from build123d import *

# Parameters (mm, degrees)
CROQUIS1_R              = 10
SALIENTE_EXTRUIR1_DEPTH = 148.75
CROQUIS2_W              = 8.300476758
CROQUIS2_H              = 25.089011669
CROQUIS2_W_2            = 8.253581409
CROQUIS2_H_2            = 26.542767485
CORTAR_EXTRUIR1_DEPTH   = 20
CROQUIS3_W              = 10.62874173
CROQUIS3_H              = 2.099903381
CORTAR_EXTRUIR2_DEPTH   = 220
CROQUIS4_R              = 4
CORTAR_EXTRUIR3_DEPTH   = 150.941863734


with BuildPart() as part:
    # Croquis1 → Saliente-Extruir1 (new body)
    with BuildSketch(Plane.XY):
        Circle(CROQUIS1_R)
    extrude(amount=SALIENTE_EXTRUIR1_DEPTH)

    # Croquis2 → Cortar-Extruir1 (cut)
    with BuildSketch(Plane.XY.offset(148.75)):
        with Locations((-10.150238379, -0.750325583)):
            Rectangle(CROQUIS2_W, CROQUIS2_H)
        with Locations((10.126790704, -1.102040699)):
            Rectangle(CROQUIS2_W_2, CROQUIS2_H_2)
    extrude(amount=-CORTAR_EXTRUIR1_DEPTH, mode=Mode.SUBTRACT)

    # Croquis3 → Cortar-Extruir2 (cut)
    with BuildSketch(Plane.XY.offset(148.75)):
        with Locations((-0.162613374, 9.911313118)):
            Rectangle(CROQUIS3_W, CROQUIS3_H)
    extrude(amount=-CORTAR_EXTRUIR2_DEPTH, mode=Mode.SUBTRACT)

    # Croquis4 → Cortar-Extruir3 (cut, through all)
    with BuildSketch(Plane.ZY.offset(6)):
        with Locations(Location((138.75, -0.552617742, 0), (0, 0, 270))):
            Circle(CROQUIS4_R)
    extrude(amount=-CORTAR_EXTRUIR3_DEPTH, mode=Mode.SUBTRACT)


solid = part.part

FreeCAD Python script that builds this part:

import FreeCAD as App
import Part
import Sketcher

V = App.Vector
Q = App.Units.Quantity


def add_polygon(sketch, points):
    """Adds a closed chain of lines whose ends are joined by coincident constraints."""
    first, n = sketch.GeometryCount, len(points)
    for a, b in zip(points, points[1:] + points[:1]):
        sketch.addGeometry(Part.LineSegment(App.Vector(*a, 0), App.Vector(*b, 0)), False)
    for i in range(n):
        sketch.addConstraint(Sketcher.Constraint("Coincident", first + i, 2, first + (i + 1) % n, 1))

doc = App.newDocument("Part")
body = doc.addObject("PartDesign::Body", "Body")

# Sketch on XY plane
sketch1 = doc.addObject("Sketcher::SketchObject", "Sketch")
body.addObject(sketch1)
sketch1.AttachmentSupport = (doc.XY_Plane, [""])
sketch1.MapMode = "FlatFace"
sketch1.addGeometry(Part.Circle(V(0, 0, 0), V(0, 0, 1), 10), False)
sketch1.addConstraint([
    Sketcher.Constraint("Coincident", 0, 3, -1, 1),
    Sketcher.Constraint("Diameter", 0, Q("20 mm")),
])
pad1 = doc.addObject("PartDesign::Pad", "Pad")
body.addObject(pad1)
pad1.Profile = sketch1
pad1.Length = 148.75

# Sketch on XY plane
sketch2 = doc.addObject("Sketcher::SketchObject", "Sketch001")
body.addObject(sketch2)
sketch2.AttachmentSupport = (doc.XY_Plane, [""])
sketch2.MapMode = "FlatFace"
sketch2.AttachmentOffset = App.Placement(V(0, 0, 148.75), App.Rotation())
add_polygon(sketch2, [(-14.300477, 11.79418), (-14.300477, -13.294831), (-6, -13.294831), (-6, 11.79418)])  # lines 0-3
add_polygon(sketch2, [(6, 12.169343), (6, -14.373424), (14.253581, -14.373424), (14.253581, 12.169343)])  # lines 4-7
sketch2.addConstraint([
    Sketcher.Constraint("Vertical", 0),
    Sketcher.Constraint("Horizontal", 1),
    Sketcher.Constraint("Vertical", 2),
    Sketcher.Constraint("Horizontal", 3),
    Sketcher.Constraint("Vertical", 4),
    Sketcher.Constraint("Horizontal", 5),
    Sketcher.Constraint("Vertical", 6),
    Sketcher.Constraint("Horizontal", 7),
    Sketcher.Constraint("DistanceX", 1, 2, -1, 1, Q("6 mm")),
    Sketcher.Constraint("DistanceX", -1, 1, 4, 2, Q("6 mm")),
    Sketcher.Constraint("DistanceX", 5, 1, 5, 2, Q("8.253581 mm")),
    Sketcher.Constraint("DistanceY", 0, 2, 0, 1, Q("25.089012 mm")),
    Sketcher.Constraint("DistanceX", 1, 1, 1, 2, Q("8.300477 mm")),
    Sketcher.Constraint("DistanceY", 4, 2, 4, 1, Q("26.542767 mm")),
    Sketcher.Constraint("DistanceY", 0, 2, -1, 1, Q("13.294831 mm")),
    Sketcher.Constraint("DistanceY", 4, 2, -1, 1, Q("14.373424 mm")),
])
pocket1 = doc.addObject("PartDesign::Pocket", "Pocket")
body.addObject(pocket1)
pocket1.Profile = sketch2
pocket1.Length = 20

# Sketch on XY plane
sketch3 = doc.addObject("Sketcher::SketchObject", "Sketch002")
body.addObject(sketch3)
sketch3.AttachmentSupport = (doc.XY_Plane, [""])
sketch3.MapMode = "FlatFace"
sketch3.AttachmentOffset = App.Placement(V(0, 0, 148.75), App.Rotation())
add_polygon(sketch3, [(-5.476984, 10.961265), (-5.476984, 8.861361), (5.151757, 8.861361), (5.151757, 10.961265)])  # lines 0-3
sketch3.addConstraint([
    Sketcher.Constraint("Vertical", 0),
    Sketcher.Constraint("Horizontal", 1),
    Sketcher.Constraint("Vertical", 2),
    Sketcher.Constraint("Horizontal", 3),
    Sketcher.Constraint("DistanceX", 1, 1, 1, 2, Q("10.628742 mm")),
    Sketcher.Constraint("DistanceY", 0, 2, 0, 1, Q("2.099903 mm")),
    Sketcher.Constraint("DistanceY", -1, 1, 0, 2, Q("8.861361 mm")),
    Sketcher.Constraint("DistanceX", 0, 2, -1, 1, Q("5.476984 mm")),
])
pocket2 = doc.addObject("PartDesign::Pocket", "Pocket001")
body.addObject(pocket2)
pocket2.Profile = sketch3
pocket2.Length = 220

# Sketch on YZ plane
sketch4 = doc.addObject("Sketcher::SketchObject", "Sketch003")
body.addObject(sketch4)
sketch4.AttachmentSupport = (doc.YZ_Plane, [""])
sketch4.MapMode = "FlatFace"
sketch4.AttachmentOffset = App.Placement(V(0, 0, -6), App.Rotation())
sketch4.addGeometry(Part.Circle(V(-0.552618, 138.75, 0), V(0, 0, 1), 4), False)
sketch4.addConstraint([
    Sketcher.Constraint("Diameter", 0, Q("8 mm")),
    Sketcher.Constraint("DistanceY", -1, 1, 0, 3, Q("138.75 mm")),
    Sketcher.Constraint("DistanceX", 0, 3, -1, 1, Q("0.552618 mm")),
])
pocket3 = doc.addObject("PartDesign::Pocket", "Pocket002")
body.addObject(pocket3)
pocket3.Profile = sketch4
pocket3.Type = "ThroughAll"
pocket3.Reversed = True

doc.recompute()
